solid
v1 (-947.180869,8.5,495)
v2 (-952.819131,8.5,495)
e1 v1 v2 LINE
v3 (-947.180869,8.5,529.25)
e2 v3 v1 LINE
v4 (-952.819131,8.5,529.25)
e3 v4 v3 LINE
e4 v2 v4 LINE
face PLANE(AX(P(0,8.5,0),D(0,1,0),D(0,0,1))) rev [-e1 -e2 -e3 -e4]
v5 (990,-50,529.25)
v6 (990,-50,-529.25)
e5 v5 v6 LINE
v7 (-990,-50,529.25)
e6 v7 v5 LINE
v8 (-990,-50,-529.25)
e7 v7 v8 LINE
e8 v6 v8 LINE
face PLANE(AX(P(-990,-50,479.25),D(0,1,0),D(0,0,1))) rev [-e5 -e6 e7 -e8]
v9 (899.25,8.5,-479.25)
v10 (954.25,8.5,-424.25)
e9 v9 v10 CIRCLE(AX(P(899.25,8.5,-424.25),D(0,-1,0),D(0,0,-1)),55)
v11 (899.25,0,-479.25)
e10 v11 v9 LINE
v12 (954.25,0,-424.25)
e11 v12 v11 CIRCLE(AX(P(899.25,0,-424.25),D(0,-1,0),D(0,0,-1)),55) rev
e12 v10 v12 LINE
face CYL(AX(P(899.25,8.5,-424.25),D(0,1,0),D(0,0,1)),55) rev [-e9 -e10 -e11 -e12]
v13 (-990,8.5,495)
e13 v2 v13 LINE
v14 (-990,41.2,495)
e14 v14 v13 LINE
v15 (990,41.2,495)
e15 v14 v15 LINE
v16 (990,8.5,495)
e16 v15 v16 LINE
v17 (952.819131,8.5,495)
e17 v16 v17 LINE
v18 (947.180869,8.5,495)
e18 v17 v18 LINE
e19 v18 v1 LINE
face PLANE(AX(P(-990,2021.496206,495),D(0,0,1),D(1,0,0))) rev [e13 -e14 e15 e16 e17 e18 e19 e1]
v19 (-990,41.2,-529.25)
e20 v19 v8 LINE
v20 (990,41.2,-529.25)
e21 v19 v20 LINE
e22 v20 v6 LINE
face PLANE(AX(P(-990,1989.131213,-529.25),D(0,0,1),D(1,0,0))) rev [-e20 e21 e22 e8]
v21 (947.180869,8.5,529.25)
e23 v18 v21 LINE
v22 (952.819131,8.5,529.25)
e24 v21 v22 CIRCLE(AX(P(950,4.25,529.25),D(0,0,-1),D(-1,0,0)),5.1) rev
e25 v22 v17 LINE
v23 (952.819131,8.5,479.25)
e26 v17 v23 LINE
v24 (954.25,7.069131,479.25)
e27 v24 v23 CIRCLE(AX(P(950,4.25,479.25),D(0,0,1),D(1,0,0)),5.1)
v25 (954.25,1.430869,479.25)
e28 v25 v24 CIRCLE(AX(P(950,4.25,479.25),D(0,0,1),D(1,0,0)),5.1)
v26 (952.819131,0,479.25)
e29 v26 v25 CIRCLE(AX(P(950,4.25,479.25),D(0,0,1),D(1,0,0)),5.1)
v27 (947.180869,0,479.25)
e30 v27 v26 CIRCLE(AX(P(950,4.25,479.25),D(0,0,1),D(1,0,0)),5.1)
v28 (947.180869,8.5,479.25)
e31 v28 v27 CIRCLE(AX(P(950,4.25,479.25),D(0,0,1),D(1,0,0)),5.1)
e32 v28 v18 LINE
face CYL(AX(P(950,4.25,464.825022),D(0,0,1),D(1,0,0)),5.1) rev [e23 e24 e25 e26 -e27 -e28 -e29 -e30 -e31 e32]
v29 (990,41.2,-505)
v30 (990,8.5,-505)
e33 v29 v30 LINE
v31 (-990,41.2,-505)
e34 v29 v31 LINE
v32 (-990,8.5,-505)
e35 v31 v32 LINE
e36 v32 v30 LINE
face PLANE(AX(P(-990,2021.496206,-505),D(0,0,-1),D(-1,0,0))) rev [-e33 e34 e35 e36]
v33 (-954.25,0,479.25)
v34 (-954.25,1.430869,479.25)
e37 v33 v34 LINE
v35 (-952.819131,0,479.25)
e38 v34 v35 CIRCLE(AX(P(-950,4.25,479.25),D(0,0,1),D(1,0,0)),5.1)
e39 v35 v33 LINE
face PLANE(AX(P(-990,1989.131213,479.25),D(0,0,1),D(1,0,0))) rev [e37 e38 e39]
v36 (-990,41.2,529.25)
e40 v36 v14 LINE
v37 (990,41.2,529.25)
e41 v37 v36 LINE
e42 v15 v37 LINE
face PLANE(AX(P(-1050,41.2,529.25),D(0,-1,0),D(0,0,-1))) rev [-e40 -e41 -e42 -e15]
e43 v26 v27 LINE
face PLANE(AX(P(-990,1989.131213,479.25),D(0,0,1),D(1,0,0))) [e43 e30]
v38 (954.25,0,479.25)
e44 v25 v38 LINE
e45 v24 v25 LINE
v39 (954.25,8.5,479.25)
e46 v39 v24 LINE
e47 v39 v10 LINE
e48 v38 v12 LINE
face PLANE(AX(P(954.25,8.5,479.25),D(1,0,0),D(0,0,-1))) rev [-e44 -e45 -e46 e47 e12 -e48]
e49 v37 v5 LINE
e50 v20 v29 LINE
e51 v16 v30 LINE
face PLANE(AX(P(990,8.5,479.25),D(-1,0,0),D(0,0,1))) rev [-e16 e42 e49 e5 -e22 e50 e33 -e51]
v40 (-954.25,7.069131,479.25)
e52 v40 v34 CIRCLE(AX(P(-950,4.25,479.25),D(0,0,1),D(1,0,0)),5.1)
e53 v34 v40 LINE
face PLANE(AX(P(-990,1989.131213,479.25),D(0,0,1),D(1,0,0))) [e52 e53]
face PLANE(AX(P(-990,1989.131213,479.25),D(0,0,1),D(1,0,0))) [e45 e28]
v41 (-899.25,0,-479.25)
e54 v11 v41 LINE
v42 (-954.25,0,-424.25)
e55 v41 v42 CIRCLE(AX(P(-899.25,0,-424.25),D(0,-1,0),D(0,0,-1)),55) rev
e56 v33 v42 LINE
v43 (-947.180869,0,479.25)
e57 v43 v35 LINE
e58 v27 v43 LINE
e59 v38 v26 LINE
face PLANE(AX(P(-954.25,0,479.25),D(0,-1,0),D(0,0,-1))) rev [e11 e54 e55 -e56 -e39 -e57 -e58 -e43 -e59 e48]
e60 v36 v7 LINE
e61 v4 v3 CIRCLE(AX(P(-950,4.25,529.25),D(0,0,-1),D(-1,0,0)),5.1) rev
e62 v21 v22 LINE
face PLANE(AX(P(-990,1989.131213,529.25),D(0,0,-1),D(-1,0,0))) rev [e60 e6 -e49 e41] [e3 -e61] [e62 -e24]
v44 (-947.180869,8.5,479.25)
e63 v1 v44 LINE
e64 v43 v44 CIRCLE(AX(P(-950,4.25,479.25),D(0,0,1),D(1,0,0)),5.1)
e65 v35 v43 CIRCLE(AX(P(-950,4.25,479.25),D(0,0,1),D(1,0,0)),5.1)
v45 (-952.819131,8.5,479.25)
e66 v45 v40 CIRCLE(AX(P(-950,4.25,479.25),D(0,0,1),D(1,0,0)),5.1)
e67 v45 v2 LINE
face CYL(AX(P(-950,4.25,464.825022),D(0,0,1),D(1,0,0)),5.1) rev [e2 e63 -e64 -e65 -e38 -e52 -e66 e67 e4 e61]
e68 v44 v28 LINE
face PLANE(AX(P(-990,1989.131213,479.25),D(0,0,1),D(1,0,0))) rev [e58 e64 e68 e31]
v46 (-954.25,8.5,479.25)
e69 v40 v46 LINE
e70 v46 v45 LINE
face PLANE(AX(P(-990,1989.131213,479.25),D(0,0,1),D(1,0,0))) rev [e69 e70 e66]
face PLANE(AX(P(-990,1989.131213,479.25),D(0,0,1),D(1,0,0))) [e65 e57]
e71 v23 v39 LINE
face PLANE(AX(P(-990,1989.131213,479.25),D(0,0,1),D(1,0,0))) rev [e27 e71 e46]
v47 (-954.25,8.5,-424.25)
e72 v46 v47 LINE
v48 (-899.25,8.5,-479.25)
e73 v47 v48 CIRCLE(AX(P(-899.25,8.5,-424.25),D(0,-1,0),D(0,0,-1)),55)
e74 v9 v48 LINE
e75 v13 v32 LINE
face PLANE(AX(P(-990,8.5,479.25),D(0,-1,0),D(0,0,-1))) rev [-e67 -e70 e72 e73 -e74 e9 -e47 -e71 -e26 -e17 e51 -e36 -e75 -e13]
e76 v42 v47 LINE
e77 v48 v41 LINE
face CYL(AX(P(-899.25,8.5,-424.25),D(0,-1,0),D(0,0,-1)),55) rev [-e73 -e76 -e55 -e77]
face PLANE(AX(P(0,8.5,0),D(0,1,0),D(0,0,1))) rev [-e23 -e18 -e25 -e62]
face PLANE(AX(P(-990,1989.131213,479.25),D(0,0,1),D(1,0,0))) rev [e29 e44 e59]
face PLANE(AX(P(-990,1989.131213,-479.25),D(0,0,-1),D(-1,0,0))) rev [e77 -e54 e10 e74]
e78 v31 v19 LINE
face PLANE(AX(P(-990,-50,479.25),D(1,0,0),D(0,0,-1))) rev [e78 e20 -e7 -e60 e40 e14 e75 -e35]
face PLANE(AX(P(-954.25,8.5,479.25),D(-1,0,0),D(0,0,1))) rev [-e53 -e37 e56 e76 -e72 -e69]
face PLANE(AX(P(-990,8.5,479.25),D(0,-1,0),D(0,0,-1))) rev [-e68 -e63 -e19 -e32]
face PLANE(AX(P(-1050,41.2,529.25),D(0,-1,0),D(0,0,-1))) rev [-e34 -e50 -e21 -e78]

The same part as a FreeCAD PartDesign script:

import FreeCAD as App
import Part
import Sketcher

V = App.Vector
Q = App.Units.Quantity


def edges_at(feature, points):
    """Names of the edges that pass closest to the given points."""
    edges = feature.Shape.Edges
    near = lambda p: min(range(len(edges)), key=lambda i: edges[i].distToShape(Part.Vertex(*p))[0])
    return sorted({f"Edge{near(p) + 1}" for p in points})

doc = App.newDocument("Part")
body = doc.addObject("PartDesign::Body", "Body")

sketch1 = body.newObject("Sketcher::SketchObject", "Sketch")
sketch1.AttachmentSupport = (doc.getObject("XY_Plane"), [""])
sketch1.MapMode = "FlatFace"
sketch1.addGeometry([
    Part.LineSegment(V(954.25, 0, 0), V(-954.25, 0, 0)),
    Part.LineSegment(V(-954.25, 0, 0), V(-954.25, 8.5, 0)),
    Part.LineSegment(V(-954.25, 8.5, 0), V(-990, 8.5, 0)),
    Part.LineSegment(V(-990, 8.5, 0), V(-990, -50, 0)),
    Part.LineSegment(V(-990, -50, 0), V(990, -50, 0)),
    Part.LineSegment(V(990, -50, 0), V(990, 8.5, 0)),
    Part.LineSegment(V(990, 8.5, 0), V(954.25, 8.5, 0)),
    Part.LineSegment(V(954.25, 8.5, 0), V(954.25, 0, 0)),
], False)
sketch1.addConstraint([
    Sketcher.Constraint("Coincident", 0, 2, 1, 1),
    Sketcher.Constraint("Coincident", 1, 2, 2, 1),
    Sketcher.Constraint("Coincident", 2, 2, 3, 1),
    Sketcher.Constraint("Coincident", 3, 2, 4, 1),
    Sketcher.Constraint("Coincident", 4, 2, 5, 1),
    Sketcher.Constraint("Coincident", 5, 2, 6, 1),
    Sketcher.Constraint("Coincident", 6, 2, 7, 1),
    Sketcher.Constraint("Coincident", 7, 2, 0, 1),
    Sketcher.Constraint("Horizontal", 0),
    Sketcher.Constraint("Vertical", 1),
    Sketcher.Constraint("Horizontal", 2),
    Sketcher.Constraint("Vertical", 3),
    Sketcher.Constraint("Horizontal", 4),
    Sketcher.Constraint("Vertical", 5),
    Sketcher.Constraint("Horizontal", 6),
    Sketcher.Constraint("Vertical", 7),
    Sketcher.Constraint("Symmetric", 0, 2, 7, 2, -1, 1),
    Sketcher.Constraint("Symmetric", 2, 2, 5, 2, -2),
    Sketcher.Constraint("DistanceX", 4, 1, 4, 2, Q("1980 mm")),
    Sketcher.Constraint("DistanceX", 0, 2, 0, 1, Q("1908.5 mm")),
    Sketcher.Constraint("DistanceY", 1, 1, 1, 2, Q("8.5 mm")),
    Sketcher.Constraint("DistanceY", 3, 2, 3, 1, Q("58.5 mm")),
])
pad1 = body.newObject("PartDesign::Pad", "Pad")
pad1.Profile = sketch1
pad1.Length = 958.5
pad1.Midplane = True

sketch2 = body.newObject("Sketcher::SketchObject", "Sketch001")
sketch2.AttachmentSupport = (doc.getObject("XZ_Plane"), [""])
sketch2.MapMode = "FlatFace"
sketch2.AttachmentOffset = App.Placement(V(0, 0, 50), App.Rotation())
sketch2.addGeometry([
    Part.LineSegment(V(-990, -529.25, 0), V(-990, -479.25, 0)),
    Part.LineSegment(V(-990, -479.25, 0), V(990, -479.25, 0)),
    Part.LineSegment(V(990, -479.25, 0), V(990, -529.25, 0)),
    Part.LineSegment(V(990, -529.25, 0), V(-990, -529.25, 0)),
], False)
sketch2.addConstraint([
    Sketcher.Constraint("Coincident", 0, 2, 1, 1),
    Sketcher.Constraint("Coincident", 1, 2, 2, 1),
    Sketcher.Constraint("Coincident", 2, 2, 3, 1),
    Sketcher.Constraint("Coincident", 3, 2, 0, 1),
    Sketcher.Constraint("Vertical", 0),
    Sketcher.Constraint("Horizontal", 1),
    Sketcher.Constraint("Vertical", 2),
    Sketcher.Constraint("Horizontal", 3),
    Sketcher.Constraint("DistanceX", 1, 1, 1, 2, Q("1980 mm")),
    Sketcher.Constraint("DistanceY", 0, 1, 0, 2, Q("50 mm")),
    Sketcher.Constraint("DistanceX", 0, 2, -1, 1, Q("990 mm")),
    Sketcher.Constraint("DistanceY", 0, 2, -1, 1, Q("479.25 mm")),
])
pad2 = body.newObject("PartDesign::Pad", "Pad001")
pad2.Profile = sketch2
pad2.Length = 58.5
pad2.Reversed = True
doc.recompute()

fillet = body.newObject("PartDesign::Fillet", "Fillet")
fillet.Base = (pad2, edges_at(pad2, [(954.25, 4.25, -479.25), (-954.25, 4.25, -479.25)]))
fillet.Radius = 55

sketch3 = body.newObject("Sketcher::SketchObject", "Sketch002")
sketch3.AttachmentSupport = (doc.getObject("XZ_Plane"), [""])
sketch3.MapMode = "FlatFace"
sketch3.AttachmentOffset = App.Placement(V(0, 0, 50), App.Rotation())
sketch3.addGeometry([
    Part.LineSegment(V(-990, 479.25, 0), V(-990, 529.25, 0)),
    Part.LineSegment(V(-990, 529.25, 0), V(990, 529.25, 0)),
    Part.LineSegment(V(990, 529.25, 0), V(990, 479.25, 0)),
    Part.LineSegment(V(990, 479.25, 0), V(-990, 479.25, 0)),
], False)
sketch3.addConstraint([
    Sketcher.Constraint("Coincident", 0, 2, 1, 1),
    Sketcher.Constraint("Coincident", 1, 2, 2, 1),
    Sketcher.Constraint("Coincident", 2, 2, 3, 1),
    Sketcher.Constraint("Coincident", 3, 2, 0, 1),
    Sketcher.Constraint("Vertical", 0),
    Sketcher.Constraint("Horizontal", 1),
    Sketcher.Constraint("Vertical", 2),
    Sketcher.Constraint("Horizontal", 3),
    Sketcher.Constraint("DistanceX", 1, 1, 1, 2, Q("1980 mm")),
    Sketcher.Constraint("DistanceY", 0, 1, 0, 2, Q("50 mm")),
    Sketcher.Constraint("DistanceX", 0, 2, -1, 1, Q("990 mm")),
    Sketcher.Constraint("DistanceY", -1, 1, 0, 2, Q("529.25 mm")),
])
pad3 = body.newObject("PartDesign::Pad", "Pad002")
pad3.Profile = sketch3
pad3.Length = 58.5
pad3.Reversed = True

sketch4 = body.newObject("Sketcher::SketchObject", "Sketch003")
sketch4.AttachmentSupport = (doc.getObject("XY_Plane"), [""])
sketch4.MapMode = "FlatFace"
sketch4.AttachmentOffset = App.Placement(V(0, 0, 529.25), App.Rotation())
sketch4.addGeometry([
    Part.Circle(V(-950, 4.25, 0), V(0, 0, 1), 5.1),
    Part.Circle(V(950, 4.25, 0), V(0, 0, 1), 5.1),
], False)
sketch4.addConstraint([
    Sketcher.Constraint("Equal", 0, 1),
    Sketcher.Constraint("Symmetric", 0, 3, 1, 3, -2),
    Sketcher.Constraint("Diameter", 0, Q("10.2 mm")),
    Sketcher.Constraint("DistanceX", 0, 3, -1, 1, Q("950 mm")),
    Sketcher.Constraint("DistanceY", -1, 1, 0, 3, Q("4.25 mm")),
])
pocket1 = body.newObject("PartDesign::Pocket", "Pocket")
pocket1.Profile = sketch4
pocket1.Length = 50

sketch5 = body.newObject("Sketcher::SketchObject", "Sketch004")
sketch5.AttachmentSupport = (doc.getObject("XZ_Plane"), [""])
sketch5.MapMode = "FlatFace"
sketch5.AttachmentOffset = App.Placement(V(0, 0, -8.5), App.Rotation())
sketch5.addGeometry([
    Part.LineSegment(V(-990, -529.25, 0), V(-990, -505, 0)),
    Part.LineSegment(V(-990, -505, 0), V(990, -505, 0)),
    Part.LineSegment(V(990, -505, 0), V(990, -529.25, 0)),
    Part.LineSegment(V(990, -529.25, 0), V(-990, -529.25, 0)),
    Part.LineSegment(V(-990, 495, 0), V(-990, 529.25, 0)),
    Part.LineSegment(V(-990, 529.25, 0), V(990, 529.25, 0)),
    Part.LineSegment(V(990, 529.25, 0), V(990, 495, 0)),
    Part.LineSegment(V(990, 495, 0), V(-990, 495, 0)),
], False)
sketch5.addConstraint([
    Sketcher.Constraint("Coincident", 0, 2, 1, 1),
    Sketcher.Constraint("Coincident", 1, 2, 2, 1),
    Sketcher.Constraint("Coincident", 2, 2, 3, 1),
    Sketcher.Constraint("Coincident", 3, 2, 0, 1),
    Sketcher.Constraint("Coincident", 4, 2, 5, 1),
    Sketcher.Constraint("Coincident", 5, 2, 6, 1),
    Sketcher.Constraint("Coincident", 6, 2, 7, 1),
    Sketcher.Constraint("Coincident", 7, 2, 4, 1),
    Sketcher.Constraint("Vertical", 0),
    Sketcher.Constraint("Horizontal", 1),
    Sketcher.Constraint("Vertical", 2),
    Sketcher.Constraint("Horizontal", 3),
    Sketcher.Constraint("Vertical", 4),
    Sketcher.Constraint("Horizontal", 5),
    Sketcher.Constraint("Vertical", 6),
    Sketcher.Constraint("Horizontal", 7),
    Sketcher.Constraint("Symmetric", 2, 2, 4, 2, -1, 1),
    Sketcher.Constraint("Vertical", 3, 2, 4, 2),
    Sketcher.Constraint("Vertical", 2, 2, 5, 2),
    Sketcher.Constraint("DistanceX", 1, 1, 1, 2, Q("1980 mm")),
    Sketcher.Constraint("DistanceY", 0, 2, -1, 1, Q("505 mm")),
    Sketcher.Constraint("DistanceY", -1, 1, 6, 2, Q("495 mm")),
    Sketcher.Constraint("DistanceY", 0, 1, 0, 2, Q("24.25 mm")),
])
pad4 = body.newObject("PartDesign::Pad", "Pad003")
pad4.Profile = sketch5
pad4.Length = 32.7
pad4.Reversed = True

doc.recompute()
